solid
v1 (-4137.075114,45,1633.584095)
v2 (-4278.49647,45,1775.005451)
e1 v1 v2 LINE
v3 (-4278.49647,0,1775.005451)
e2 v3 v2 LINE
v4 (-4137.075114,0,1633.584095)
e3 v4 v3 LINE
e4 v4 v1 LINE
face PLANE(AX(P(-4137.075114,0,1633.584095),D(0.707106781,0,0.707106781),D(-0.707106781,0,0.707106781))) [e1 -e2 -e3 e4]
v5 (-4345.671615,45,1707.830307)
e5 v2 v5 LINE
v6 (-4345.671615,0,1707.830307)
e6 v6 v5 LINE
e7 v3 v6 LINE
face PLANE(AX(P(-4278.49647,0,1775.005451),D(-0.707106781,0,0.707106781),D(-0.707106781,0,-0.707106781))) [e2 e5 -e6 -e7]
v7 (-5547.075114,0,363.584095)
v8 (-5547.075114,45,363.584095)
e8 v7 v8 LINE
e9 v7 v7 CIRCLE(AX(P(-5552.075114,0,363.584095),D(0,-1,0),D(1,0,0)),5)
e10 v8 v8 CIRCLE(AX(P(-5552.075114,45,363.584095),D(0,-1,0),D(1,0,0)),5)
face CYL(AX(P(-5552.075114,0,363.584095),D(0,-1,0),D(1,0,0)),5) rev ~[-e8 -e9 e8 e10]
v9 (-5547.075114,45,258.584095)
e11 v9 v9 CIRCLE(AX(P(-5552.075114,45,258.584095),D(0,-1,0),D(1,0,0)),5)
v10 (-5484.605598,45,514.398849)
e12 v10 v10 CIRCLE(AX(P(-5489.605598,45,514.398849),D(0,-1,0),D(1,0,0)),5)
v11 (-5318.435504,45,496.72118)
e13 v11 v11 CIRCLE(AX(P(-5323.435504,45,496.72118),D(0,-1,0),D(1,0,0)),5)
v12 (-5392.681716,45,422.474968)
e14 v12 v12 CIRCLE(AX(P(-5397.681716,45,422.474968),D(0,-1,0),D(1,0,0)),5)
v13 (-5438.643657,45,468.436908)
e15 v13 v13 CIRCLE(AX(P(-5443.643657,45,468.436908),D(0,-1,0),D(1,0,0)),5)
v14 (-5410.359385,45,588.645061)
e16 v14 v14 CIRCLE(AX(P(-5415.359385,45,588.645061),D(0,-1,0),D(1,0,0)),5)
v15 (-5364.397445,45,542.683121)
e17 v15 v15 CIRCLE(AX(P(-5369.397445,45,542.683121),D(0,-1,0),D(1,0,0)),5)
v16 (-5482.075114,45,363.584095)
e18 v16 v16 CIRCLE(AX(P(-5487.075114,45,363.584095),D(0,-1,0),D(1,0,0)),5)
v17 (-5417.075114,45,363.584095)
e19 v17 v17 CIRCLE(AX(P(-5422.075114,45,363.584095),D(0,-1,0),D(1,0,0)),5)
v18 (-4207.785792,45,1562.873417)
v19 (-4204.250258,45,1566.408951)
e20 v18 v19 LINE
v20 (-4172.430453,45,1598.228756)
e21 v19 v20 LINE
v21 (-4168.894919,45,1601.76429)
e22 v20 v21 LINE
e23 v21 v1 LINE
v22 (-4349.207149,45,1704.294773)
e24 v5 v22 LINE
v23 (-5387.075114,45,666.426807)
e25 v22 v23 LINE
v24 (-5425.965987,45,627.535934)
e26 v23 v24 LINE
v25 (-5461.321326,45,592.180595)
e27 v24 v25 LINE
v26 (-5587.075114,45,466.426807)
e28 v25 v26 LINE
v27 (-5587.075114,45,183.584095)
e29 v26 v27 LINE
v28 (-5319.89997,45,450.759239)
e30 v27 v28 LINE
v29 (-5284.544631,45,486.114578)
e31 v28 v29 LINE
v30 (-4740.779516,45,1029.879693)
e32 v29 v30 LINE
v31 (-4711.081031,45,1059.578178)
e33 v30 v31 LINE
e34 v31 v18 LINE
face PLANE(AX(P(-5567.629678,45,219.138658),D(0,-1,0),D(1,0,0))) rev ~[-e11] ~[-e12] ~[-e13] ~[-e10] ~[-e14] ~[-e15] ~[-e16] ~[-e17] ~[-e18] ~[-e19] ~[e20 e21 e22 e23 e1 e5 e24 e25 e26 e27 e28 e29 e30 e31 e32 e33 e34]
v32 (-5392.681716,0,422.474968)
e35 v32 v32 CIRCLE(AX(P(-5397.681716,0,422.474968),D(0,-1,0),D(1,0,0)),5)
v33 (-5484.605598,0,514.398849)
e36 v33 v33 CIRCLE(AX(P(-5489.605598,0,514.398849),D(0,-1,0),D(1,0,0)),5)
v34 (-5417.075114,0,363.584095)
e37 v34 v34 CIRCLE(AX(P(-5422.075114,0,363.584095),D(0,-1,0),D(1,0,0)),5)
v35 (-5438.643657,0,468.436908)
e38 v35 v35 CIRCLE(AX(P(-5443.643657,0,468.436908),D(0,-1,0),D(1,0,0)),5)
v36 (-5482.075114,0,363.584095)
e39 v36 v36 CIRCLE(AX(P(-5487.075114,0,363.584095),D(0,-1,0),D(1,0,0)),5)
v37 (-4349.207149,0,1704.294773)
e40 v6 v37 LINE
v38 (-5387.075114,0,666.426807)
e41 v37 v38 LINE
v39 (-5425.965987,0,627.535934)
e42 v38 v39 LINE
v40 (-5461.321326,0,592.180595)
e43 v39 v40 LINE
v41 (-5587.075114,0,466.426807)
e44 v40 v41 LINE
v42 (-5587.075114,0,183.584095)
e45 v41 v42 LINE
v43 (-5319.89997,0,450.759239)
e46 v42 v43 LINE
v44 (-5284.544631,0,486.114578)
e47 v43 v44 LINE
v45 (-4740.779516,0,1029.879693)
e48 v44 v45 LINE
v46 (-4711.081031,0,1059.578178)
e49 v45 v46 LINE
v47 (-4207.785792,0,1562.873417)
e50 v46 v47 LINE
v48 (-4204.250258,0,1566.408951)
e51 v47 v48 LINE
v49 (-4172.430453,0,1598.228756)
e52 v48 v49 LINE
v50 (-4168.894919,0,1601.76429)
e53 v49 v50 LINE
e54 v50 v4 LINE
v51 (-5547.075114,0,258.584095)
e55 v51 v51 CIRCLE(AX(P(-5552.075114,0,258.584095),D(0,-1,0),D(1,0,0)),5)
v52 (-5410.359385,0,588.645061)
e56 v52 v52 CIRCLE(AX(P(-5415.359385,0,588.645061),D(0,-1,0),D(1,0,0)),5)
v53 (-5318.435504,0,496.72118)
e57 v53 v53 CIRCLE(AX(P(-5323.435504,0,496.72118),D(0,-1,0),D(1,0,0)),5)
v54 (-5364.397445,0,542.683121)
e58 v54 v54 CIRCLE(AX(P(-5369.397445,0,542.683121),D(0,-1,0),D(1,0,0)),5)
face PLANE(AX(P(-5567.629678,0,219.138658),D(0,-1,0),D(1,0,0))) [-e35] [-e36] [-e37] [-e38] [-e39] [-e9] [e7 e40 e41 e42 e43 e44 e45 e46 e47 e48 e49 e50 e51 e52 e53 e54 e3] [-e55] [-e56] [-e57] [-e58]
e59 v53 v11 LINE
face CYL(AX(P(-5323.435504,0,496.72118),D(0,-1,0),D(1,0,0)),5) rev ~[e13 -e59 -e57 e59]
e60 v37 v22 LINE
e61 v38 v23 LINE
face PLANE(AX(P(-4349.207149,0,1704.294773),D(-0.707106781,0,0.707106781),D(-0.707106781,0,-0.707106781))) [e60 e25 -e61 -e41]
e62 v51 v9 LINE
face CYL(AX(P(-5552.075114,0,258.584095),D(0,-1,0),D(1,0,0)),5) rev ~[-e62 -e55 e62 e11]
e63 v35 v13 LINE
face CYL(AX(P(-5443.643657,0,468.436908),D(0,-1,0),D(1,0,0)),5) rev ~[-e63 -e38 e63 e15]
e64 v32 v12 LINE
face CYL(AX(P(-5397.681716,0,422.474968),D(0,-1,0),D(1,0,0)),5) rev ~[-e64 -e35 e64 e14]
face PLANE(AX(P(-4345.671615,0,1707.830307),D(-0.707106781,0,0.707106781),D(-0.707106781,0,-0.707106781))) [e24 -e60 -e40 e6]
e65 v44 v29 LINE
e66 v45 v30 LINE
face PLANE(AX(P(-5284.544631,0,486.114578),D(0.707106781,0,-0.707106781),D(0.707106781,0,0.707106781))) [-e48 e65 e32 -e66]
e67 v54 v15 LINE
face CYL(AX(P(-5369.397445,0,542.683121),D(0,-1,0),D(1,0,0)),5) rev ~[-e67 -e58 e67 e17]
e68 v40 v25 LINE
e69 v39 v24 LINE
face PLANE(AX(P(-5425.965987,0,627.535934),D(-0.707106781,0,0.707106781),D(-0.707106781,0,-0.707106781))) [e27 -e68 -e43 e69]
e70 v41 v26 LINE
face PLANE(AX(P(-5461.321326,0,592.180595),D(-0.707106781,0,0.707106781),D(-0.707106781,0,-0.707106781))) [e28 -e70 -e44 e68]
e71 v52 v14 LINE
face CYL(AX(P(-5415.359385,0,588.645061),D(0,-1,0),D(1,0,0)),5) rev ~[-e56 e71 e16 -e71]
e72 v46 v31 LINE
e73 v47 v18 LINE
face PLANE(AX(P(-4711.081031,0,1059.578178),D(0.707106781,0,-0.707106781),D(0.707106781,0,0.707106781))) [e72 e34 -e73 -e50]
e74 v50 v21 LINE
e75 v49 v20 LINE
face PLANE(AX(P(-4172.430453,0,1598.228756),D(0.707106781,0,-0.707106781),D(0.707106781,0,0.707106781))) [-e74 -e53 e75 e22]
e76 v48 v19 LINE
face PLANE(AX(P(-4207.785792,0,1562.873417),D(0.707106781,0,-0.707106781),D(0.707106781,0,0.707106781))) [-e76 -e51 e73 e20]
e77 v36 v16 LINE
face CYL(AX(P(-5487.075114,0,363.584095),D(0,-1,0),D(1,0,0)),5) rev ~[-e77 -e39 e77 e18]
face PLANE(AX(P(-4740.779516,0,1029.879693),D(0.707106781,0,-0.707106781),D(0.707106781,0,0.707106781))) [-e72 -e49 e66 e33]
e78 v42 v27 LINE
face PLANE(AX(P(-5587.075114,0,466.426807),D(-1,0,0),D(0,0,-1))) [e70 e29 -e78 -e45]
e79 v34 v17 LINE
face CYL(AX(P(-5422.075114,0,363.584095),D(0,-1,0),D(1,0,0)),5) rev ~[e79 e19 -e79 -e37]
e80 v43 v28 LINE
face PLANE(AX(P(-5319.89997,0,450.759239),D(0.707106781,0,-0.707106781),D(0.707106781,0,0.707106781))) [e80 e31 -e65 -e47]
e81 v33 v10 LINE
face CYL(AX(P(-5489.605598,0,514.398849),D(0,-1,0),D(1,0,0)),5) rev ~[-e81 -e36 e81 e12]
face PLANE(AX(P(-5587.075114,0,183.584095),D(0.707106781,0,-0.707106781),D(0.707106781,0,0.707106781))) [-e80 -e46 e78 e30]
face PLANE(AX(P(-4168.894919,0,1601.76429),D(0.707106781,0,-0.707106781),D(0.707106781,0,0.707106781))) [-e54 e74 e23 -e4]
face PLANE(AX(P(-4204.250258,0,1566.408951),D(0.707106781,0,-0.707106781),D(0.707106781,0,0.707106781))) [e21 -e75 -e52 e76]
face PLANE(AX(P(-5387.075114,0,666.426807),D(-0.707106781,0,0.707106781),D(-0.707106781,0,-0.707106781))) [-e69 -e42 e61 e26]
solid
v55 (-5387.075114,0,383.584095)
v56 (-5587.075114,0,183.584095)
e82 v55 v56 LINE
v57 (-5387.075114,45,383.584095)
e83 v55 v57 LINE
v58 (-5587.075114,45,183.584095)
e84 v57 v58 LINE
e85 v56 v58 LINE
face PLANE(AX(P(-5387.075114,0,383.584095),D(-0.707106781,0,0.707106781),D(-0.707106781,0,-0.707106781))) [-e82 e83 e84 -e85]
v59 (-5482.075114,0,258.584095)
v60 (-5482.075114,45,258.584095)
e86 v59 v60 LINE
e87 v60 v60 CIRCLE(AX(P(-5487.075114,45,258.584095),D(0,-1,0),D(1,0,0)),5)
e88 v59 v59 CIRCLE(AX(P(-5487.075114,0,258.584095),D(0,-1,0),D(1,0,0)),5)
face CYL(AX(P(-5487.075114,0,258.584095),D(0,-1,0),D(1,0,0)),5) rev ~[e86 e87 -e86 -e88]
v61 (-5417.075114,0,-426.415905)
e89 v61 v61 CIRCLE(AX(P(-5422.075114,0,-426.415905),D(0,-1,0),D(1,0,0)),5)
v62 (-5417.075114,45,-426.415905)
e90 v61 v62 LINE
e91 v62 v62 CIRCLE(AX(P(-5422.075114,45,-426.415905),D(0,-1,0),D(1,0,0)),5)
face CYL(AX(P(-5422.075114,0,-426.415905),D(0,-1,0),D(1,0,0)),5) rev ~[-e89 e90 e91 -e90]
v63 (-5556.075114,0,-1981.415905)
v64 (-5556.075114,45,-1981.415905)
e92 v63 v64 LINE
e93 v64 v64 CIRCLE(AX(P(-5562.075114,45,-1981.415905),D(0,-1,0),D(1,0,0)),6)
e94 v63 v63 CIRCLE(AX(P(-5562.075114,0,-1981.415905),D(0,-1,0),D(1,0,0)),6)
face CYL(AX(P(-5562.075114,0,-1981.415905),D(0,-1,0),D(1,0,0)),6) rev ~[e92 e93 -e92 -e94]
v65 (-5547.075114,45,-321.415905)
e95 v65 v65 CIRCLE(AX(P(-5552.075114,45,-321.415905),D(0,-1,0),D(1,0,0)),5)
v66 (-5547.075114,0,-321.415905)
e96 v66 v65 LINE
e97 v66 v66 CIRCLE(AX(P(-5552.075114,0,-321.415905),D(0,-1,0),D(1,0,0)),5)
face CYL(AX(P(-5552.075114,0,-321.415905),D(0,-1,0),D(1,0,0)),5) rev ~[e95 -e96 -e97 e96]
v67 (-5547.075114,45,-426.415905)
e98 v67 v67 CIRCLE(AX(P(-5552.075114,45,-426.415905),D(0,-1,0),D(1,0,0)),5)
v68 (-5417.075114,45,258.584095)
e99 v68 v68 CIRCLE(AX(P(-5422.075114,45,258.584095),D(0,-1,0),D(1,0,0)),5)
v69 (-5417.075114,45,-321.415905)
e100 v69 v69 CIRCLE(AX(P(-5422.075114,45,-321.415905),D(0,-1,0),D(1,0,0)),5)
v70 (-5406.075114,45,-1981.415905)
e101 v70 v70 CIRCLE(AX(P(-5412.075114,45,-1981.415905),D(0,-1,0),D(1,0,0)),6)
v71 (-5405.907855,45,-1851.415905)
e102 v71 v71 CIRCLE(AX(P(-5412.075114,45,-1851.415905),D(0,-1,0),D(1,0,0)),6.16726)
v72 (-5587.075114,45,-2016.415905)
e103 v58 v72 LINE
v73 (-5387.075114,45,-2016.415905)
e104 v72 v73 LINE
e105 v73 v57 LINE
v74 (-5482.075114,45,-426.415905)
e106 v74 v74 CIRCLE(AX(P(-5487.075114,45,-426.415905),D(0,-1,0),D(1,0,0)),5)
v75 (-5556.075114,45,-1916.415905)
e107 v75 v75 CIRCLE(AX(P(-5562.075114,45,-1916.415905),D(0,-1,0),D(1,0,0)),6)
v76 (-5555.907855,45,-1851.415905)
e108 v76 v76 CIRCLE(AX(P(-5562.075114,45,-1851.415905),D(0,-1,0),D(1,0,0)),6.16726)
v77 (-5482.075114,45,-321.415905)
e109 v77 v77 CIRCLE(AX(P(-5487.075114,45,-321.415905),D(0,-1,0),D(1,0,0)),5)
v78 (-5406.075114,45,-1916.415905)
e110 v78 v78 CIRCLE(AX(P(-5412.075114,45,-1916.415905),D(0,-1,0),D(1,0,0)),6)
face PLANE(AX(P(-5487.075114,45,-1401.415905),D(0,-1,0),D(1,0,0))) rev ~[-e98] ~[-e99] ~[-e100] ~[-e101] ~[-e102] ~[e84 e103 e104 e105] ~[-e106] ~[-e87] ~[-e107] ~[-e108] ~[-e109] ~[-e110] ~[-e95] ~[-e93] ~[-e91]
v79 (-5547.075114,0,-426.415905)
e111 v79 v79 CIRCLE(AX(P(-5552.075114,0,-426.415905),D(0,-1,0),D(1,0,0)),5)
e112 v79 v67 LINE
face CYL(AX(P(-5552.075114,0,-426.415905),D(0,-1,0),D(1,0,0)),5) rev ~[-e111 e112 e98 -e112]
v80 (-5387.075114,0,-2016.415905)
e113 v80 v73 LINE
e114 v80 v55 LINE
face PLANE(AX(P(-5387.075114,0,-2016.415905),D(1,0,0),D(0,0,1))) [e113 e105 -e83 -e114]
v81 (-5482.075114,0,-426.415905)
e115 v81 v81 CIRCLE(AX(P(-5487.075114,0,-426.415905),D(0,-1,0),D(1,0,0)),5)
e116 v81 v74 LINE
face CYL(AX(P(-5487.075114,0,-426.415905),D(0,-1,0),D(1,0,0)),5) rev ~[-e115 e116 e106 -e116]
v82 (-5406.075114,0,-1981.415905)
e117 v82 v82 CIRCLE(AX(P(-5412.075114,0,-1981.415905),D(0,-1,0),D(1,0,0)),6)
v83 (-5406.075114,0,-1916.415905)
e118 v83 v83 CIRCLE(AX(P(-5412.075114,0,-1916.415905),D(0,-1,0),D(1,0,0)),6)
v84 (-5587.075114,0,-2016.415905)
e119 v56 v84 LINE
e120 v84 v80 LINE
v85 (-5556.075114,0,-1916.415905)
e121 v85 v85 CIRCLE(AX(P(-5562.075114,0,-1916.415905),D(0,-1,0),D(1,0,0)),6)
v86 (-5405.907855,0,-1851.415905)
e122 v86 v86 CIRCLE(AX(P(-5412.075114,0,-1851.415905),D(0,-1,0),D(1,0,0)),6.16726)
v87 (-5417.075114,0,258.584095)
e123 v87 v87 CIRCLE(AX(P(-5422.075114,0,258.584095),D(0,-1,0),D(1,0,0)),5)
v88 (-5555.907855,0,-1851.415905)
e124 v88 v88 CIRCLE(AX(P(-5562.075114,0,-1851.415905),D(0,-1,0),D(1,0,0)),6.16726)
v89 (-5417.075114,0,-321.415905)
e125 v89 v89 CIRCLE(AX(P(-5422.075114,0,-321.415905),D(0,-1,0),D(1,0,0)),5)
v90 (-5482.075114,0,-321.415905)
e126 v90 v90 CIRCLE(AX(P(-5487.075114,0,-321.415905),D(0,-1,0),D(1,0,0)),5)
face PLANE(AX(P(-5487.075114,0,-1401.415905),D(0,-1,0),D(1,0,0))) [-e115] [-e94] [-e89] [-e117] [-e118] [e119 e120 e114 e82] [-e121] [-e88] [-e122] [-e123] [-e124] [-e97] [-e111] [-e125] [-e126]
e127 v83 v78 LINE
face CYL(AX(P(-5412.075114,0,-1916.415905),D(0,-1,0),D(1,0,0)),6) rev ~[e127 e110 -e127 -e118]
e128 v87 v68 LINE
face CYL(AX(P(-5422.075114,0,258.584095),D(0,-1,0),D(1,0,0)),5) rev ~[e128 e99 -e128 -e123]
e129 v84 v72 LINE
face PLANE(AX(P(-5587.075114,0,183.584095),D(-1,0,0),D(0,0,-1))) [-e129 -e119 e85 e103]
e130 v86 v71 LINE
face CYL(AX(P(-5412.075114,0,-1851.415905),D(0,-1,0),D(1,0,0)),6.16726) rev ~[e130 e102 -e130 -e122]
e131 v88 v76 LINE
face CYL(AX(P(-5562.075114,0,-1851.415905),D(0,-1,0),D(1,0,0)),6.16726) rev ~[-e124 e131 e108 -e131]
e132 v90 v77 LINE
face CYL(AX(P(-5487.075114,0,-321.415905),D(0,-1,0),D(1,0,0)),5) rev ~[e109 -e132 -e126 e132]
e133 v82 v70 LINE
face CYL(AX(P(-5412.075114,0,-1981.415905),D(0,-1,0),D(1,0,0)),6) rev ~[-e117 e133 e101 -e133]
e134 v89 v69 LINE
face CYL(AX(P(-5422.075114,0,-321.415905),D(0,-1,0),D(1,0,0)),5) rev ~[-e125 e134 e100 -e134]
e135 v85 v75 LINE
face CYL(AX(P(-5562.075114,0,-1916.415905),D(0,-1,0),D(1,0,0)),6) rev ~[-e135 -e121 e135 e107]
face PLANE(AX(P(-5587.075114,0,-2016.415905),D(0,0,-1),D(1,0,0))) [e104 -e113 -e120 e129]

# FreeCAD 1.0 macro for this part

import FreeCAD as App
import Part
import Sketcher
from FreeCAD import Vector
Q = App.Units.Quantity


def add_polygon(sketch, points):
    """Adds a closed chain of lines whose ends are joined by coincident constraints."""
    first, n = sketch.GeometryCount, len(points)
    for a, b in zip(points, points[1:] + points[:1]):
        sketch.addGeometry(Part.LineSegment(App.Vector(*a, 0), App.Vector(*b, 0)), False)
    for i in range(n):
        sketch.addConstraint(Sketcher.Constraint("Coincident", first + i, 2, first + (i + 1) % n, 1))

doc = App.newDocument("Part")
body = doc.addObject("PartDesign::Body", "Body")

# Sketch on XZ plane
sketch1 = body.newObject("Sketcher::SketchObject", "Sketch")
sketch1.AttachmentSupport = (doc.getObject("XZ_Plane"), [""])
sketch1.MapMode = "FlatFace"
add_polygon(sketch1, [(-5587, -2016), (-5387, -2016), (-5387, 384), (-5587, 184)])  # lines 0-3
sketch1.addGeometry(Part.Circle(Vector(-5562, -1981, 0), Vector(0, 0, 1), 6), False)  # 4
sketch1.addGeometry(Part.Circle(Vector(-5562, -1916, 0), Vector(0, 0, 1), 6), False)  # 5
sketch1.addGeometry(Part.Circle(Vector(-5562, -1851, 0), Vector(0, 0, 1), 6), False)  # 6
sketch1.addGeometry(Part.Circle(Vector(-5412, -1981, 0), Vector(0, 0, 1), 6), False)  # 7
sketch1.addGeometry(Part.Circle(Vector(-5412, -1916, 0), Vector(0, 0, 1), 6), False)  # 8
sketch1.addGeometry(Part.Circle(Vector(-5412, -1851, 0), Vector(0, 0, 1), 6), False)  # 9
sketch1.addGeometry(Part.Circle(Vector(-5552, -426, 0), Vector(0, 0, 1), 5), False)  # 10
sketch1.addGeometry(Part.Circle(Vector(-5552, -321, 0), Vector(0, 0, 1), 5), False)  # 11
sketch1.addGeometry(Part.Circle(Vector(-5487, -426, 0), Vector(0, 0, 1), 5), False)  # 12
sketch1.addGeometry(Part.Circle(Vector(-5487, -321, 0), Vector(0, 0, 1), 5), False)  # 13
sketch1.addGeometry(Part.Circle(Vector(-5422, -426, 0), Vector(0, 0, 1), 5), False)  # 14
sketch1.addGeometry(Part.Circle(Vector(-5422, -321, 0), Vector(0, 0, 1), 5), False)  # 15
sketch1.addGeometry(Part.Circle(Vector(-5487, 259, 0), Vector(0, 0, 1), 5), False)  # 16
sketch1.addGeometry(Part.Circle(Vector(-5422, 259, 0), Vector(0, 0, 1), 5), False)  # 17
sketch1.addConstraint([
    Sketcher.Constraint("Horizontal", 0),
    Sketcher.Constraint("Vertical", 1),
    Sketcher.Constraint("Vertical", 3),
    Sketcher.Constraint("Equal", 4, 5),
    Sketcher.Constraint("Equal", 5, 7),
    Sketcher.Constraint("Equal", 7, 8),
    Sketcher.Constraint("Equal", 6, 9),
    Sketcher.Constraint("Equal", 10, 11),
    Sketcher.Constraint("Equal", 11, 12),
    Sketcher.Constraint("Equal", 12, 13),
    Sketcher.Constraint("Equal", 13, 14),
    Sketcher.Constraint("Equal", 14, 15),
    Sketcher.Constraint("Equal", 15, 16),
    Sketcher.Constraint("Equal", 16, 17),
    Sketcher.Constraint("Horizontal", 4, 3, 7, 3),
    Sketcher.Constraint("Horizontal", 5, 3, 8, 3),
    Sketcher.Constraint("Horizontal", 6, 3, 9, 3),
    Sketcher.Constraint("Horizontal", 10, 3, 12, 3),
    Sketcher.Constraint("Horizontal", 11, 3, 13, 3),
    Sketcher.Constraint("Horizontal", 12, 3, 14, 3),
    Sketcher.Constraint("Horizontal", 13, 3, 15, 3),
    Sketcher.Constraint("Horizontal", 16, 3, 17, 3),
    Sketcher.Constraint("Vertical", 4, 3, 5, 3),
    Sketcher.Constraint("Vertical", 5, 3, 6, 3),
    Sketcher.Constraint("Vertical", 7, 3, 8, 3),
    Sketcher.Constraint("Vertical", 8, 3, 9, 3),
    Sketcher.Constraint("Vertical", 10, 3, 11, 3),
    Sketcher.Constraint("Vertical", 12, 3, 13, 3),
    Sketcher.Constraint("Vertical", 14, 3, 15, 3),
    Sketcher.Constraint("Vertical", 13, 3, 16, 3),
    Sketcher.Constraint("Vertical", 15, 3, 17, 3),
    Sketcher.Constraint("Diameter", 4, 12.0),
    Sketcher.Constraint("Diameter", 10, 10.0),
    Sketcher.Constraint("DistanceX", 0, 1, 0, 2, 200.0),
    Sketcher.Constraint("DistanceY", 1, 1, 1, 2, 2400.0),
    Sketcher.Constraint("DistanceY", 3, 2, 3, 1, 2200.0),
    Sketcher.Constraint("DistanceY", 4, 3, 5, 3, 65.0),
    Sketcher.Constraint("DistanceY", 5, 3, 6, 3, 65.0),
    Sketcher.Constraint("DistanceX", 4, 3, 7, 3, 150.0),
    Sketcher.Constraint("DistanceX", 6, 3, 10, 3, 10.0),
    Sketcher.Constraint("DistanceY", 6, 3, 10, 3, 1425.0),
    Sketcher.Constraint("DistanceY", 10, 3, 11, 3, 105.0),
    Sketcher.Constraint("DistanceX", 10, 3, 12, 3, 65.0),
    Sketcher.Constraint("DistanceX", 12, 3, 14, 3, 65.0),
    Sketcher.Constraint("DistanceY", 13, 3, 16, 3, 580.0),
    Sketcher.Constraint("DistanceX", 7, 3, 0, 2, 25.0),
    Sketcher.Constraint("DistanceY", 0, 2, 7, 3, 35.0),
    Sketcher.Constraint("Diameter", 6, 12.334519),
    Sketcher.Constraint("DistanceX", 4, 3, -1, 1, 5562.075114),
    Sketcher.Constraint("DistanceY", 4, 3, -1, 1, 1981.415905),
])
pad1 = body.newObject("PartDesign::Pad", "Pad")
pad1.Profile = sketch1
pad1.Length = 45
pad1.Reversed = True
body2 = doc.addObject("PartDesign::Body", "Body001")

# Sketch on XZ plane
sketch2 = body2.newObject("Sketcher::SketchObject", "Sketch001")
sketch2.AttachmentSupport = (doc.getObject("XZ_Plane001"), [""])
sketch2.MapMode = "FlatFace"
add_polygon(sketch2, [(-5461, 592), (-5587, 466), (-5587, 184), (-5320, 451), (-5285, 486), (-4741, 1030), (-4711, 1060), (-4208, 1563), (-4204, 1566), (-4172, 1598), (-4169, 1602), (-4137, 1634), (-4278, 1775), (-4346, 1708), (-4349, 1704), (-5387, 666), (-5426, 628)])  # lines 0-16
sketch2.addGeometry(Part.Circle(Vector(-5552, 259, 0), Vector(0, 0, 1), 5), False)  # 17
sketch2.addGeometry(Part.Circle(Vector(-5552, 364, 0), Vector(0, 0, 1), 5), False)  # 18
sketch2.addGeometry(Part.Circle(Vector(-5487, 364, 0), Vector(0, 0, 1), 5), False)  # 19
sketch2.addGeometry(Part.Circle(Vector(-5422, 364, 0), Vector(0, 0, 1), 5), False)  # 20
sketch2.addGeometry(Part.Circle(Vector(-5398, 422, 0), Vector(0, 0, 1), 5), False)  # 21
sketch2.addGeometry(Part.Circle(Vector(-5444, 468, 0), Vector(0, 0, 1), 5), False)  # 22
sketch2.addGeometry(Part.Circle(Vector(-5490, 514, 0), Vector(0, 0, 1), 5), False)  # 23
sketch2.addGeometry(Part.Circle(Vector(-5323, 497, 0), Vector(0, 0, 1), 5), False)  # 24
sketch2.addGeometry(Part.Circle(Vector(-5415, 589, 0), Vector(0, 0, 1), 5), False)  # 25
sketch2.addGeometry(Part.Circle(Vector(-5369, 543, 0), Vector(0, 0, 1), 5), False)  # 26
sketch2.addConstraint([
    Sketcher.Constraint("Vertical", 1),
    Sketcher.Constraint("Equal", 17, 18),
    Sketcher.Constraint("Equal", 18, 19),
    Sketcher.Constraint("Equal", 19, 20),
    Sketcher.Constraint("Equal", 20, 21),
    Sketcher.Constraint("Equal", 21, 22),
    Sketcher.Constraint("Equal", 22, 23),
    Sketcher.Constraint("Equal", 23, 24),
    Sketcher.Constraint("Equal", 24, 25),
    Sketcher.Constraint("Equal", 25, 26),
    Sketcher.Constraint("Parallel", 0, 2),
    Sketcher.Constraint("Parallel", 2, 3),
    Sketcher.Constraint("Parallel", 3, 4),
    Sketcher.Constraint("Parallel", 4, 5),
    Sketcher.Constraint("Parallel", 5, 6),
    Sketcher.Constraint("Parallel", 6, 7),
    Sketcher.Constraint("Parallel", 7, 8),
    Sketcher.Constraint("Parallel", 8, 9),
    Sketcher.Constraint("Parallel", 9, 10),
    Sketcher.Constraint("Perpendicular", 10, 11),
    Sketcher.Constraint("Perpendicular", 11, 12),
    Sketcher.Constraint("Parallel", 12, 13),
    Sketcher.Constraint("Parallel", 13, 14),
    Sketcher.Constraint("Parallel", 14, 15),
    Sketcher.Constraint("Parallel", 15, 16),
    Sketcher.Constraint("Horizontal", 18, 3, 19, 3),
    Sketcher.Constraint("Horizontal", 19, 3, 20, 3),
    Sketcher.Constraint("Vertical", 17, 3, 18, 3),
    Sketcher.Constraint("Equal", 7, 9),
    Sketcher.Constraint("Equal", 8, 10),
    Sketcher.Constraint("Equal", 9, 13),
    Sketcher.Constraint("Equal", 3, 16),
    Sketcher.Constraint("Diameter", 17, 10.0),
    Sketcher.Constraint("Angle", 0, Q("-135 deg")),
    Sketcher.Constraint("Distance", 3, 50.0),
    Sketcher.Constraint("Distance", 4, 769.0),
    Sketcher.Constraint("Distance", 5, 42.0),
    Sketcher.Constraint("Distance", 7, 5.0),
    Sketcher.Constraint("Distance", 8, 45.0),
    Sketcher.Constraint("Distance", 11, 200.0),
    Sketcher.Constraint("Distance", 12, 95.0),
    Sketcher.Constraint("Distance", 15, 55.0),
    Sketcher.Constraint("DistanceY", 17, 3, 18, 3, 105.0),
    Sketcher.Constraint("DistanceX", 18, 3, 19, 3, 65.0),
    Sketcher.Constraint("DistanceX", 19, 3, 20, 3, 65.0),
    Sketcher.Constraint("DistanceX", 0, 2, 18, 3, 35.0),
    Sketcher.Constraint("DistanceY", 1, 2, 17, 3, 75.0),
    Sketcher.Constraint("DistanceX", 20, 3, 21, 3, 24.393398),
    Sketcher.Constraint("DistanceY", 0, 2, 22, 3, 2.010101),
    Sketcher.Constraint("DistanceY", 3, 2, 24, 3, 10.606602),
    Sketcher.Constraint("DistanceY", 22, 3, 14, 2, 197.989899),
    Sketcher.Constraint("DistanceX", 15, 2, 25, 3, 10.606602),
    Sketcher.Constraint("DistanceY", -1, 1, 22, 3, 468.436908),
    Sketcher.Constraint("DistanceY", -1, 1, 23, 3, 514.398849),
    Sketcher.Constraint("DistanceY", -1, 1, 24, 3, 496.72118),
    Sketcher.Constraint("DistanceY", -1, 1, 25, 3, 588.645061),
    Sketcher.Constraint("DistanceY", -1, 1, 26, 3, 542.683121),
    Sketcher.Constraint("DistanceX", 2, 2, -1, 1, 5319.89997),
    Sketcher.Constraint("DistanceX", 7, 2, -1, 1, 4204.250258),
    Sketcher.Constraint("DistanceX", 22, 3, 21, 3, 45.961941),
    Sketcher.Constraint("DistanceY", 21, 3, 22, 3, 45.961941),
    Sketcher.Constraint("DistanceX", 23, 3, 22, 3, 45.961941),
    Sketcher.Constraint("DistanceX", 20, 3, 24, 3, 98.63961),
    Sketcher.Constraint("DistanceX", 25, 3, 26, 3, 45.961941),
])
pad2 = body2.newObject("PartDesign::Pad", "Pad001")
pad2.Profile = sketch2
pad2.Length = 45
pad2.Reversed = True

doc.recompute()
